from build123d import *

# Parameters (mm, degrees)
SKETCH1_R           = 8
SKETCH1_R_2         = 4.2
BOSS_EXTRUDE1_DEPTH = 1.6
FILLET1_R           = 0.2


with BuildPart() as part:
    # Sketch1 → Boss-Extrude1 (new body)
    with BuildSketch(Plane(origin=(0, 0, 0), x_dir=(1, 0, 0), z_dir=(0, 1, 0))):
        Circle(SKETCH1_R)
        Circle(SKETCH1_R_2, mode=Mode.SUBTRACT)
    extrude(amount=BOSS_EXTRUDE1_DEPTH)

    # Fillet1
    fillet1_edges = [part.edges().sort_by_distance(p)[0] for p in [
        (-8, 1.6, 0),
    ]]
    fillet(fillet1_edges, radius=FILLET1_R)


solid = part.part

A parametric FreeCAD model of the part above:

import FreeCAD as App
import Part
import Sketcher

V = App.Vector
Q = App.Units.Quantity


def edges_at(feature, points):
    """Names of the edges that pass closest to the given points."""
    edges = feature.Shape.Edges
    near = lambda p: min(range(len(edges)), key=lambda i: edges[i].distToShape(Part.Vertex(*p))[0])
    return sorted({f"Edge{near(p) + 1}" for p in points})

doc = App.newDocument("Part")
body = doc.addObject("PartDesign::Body", "Body")

# Sketch on XZ plane
sketch1 = body.newObject("Sketcher::SketchObject", "Sketch")
sketch1.AttachmentSupport = (doc.getObject("XZ_Plane"), [""])
sketch1.MapMode = "FlatFace"
sketch1.addGeometry([
    Part.Circle(V(0, 0, 0), V(0, 0, 1), 8),
    Part.Circle(V(0, 0, 0), V(0, 0, 1), 4.2),
], False)
sketch1.addConstraint([
    Sketcher.Constraint("Coincident", 0, 3, -1, 1),
    Sketcher.Constraint("Coincident", 1, 3, -1, 1),
    Sketcher.Constraint("Diameter", 0, Q("16 mm")),
    Sketcher.Constraint("Diameter", 1, Q("8.4 mm")),
])
pad1 = body.newObject("PartDesign::Pad", "Pad")
pad1.Profile = sketch1
pad1.Length = 1.6
pad1.Reversed = True
doc.recompute()

fillet = body.newObject("PartDesign::Fillet", "Fillet")
fillet.Base = (pad1, edges_at(pad1, [(-8, 1.6, 0)]))
fillet.Radius = 0.2

doc.recompute()
